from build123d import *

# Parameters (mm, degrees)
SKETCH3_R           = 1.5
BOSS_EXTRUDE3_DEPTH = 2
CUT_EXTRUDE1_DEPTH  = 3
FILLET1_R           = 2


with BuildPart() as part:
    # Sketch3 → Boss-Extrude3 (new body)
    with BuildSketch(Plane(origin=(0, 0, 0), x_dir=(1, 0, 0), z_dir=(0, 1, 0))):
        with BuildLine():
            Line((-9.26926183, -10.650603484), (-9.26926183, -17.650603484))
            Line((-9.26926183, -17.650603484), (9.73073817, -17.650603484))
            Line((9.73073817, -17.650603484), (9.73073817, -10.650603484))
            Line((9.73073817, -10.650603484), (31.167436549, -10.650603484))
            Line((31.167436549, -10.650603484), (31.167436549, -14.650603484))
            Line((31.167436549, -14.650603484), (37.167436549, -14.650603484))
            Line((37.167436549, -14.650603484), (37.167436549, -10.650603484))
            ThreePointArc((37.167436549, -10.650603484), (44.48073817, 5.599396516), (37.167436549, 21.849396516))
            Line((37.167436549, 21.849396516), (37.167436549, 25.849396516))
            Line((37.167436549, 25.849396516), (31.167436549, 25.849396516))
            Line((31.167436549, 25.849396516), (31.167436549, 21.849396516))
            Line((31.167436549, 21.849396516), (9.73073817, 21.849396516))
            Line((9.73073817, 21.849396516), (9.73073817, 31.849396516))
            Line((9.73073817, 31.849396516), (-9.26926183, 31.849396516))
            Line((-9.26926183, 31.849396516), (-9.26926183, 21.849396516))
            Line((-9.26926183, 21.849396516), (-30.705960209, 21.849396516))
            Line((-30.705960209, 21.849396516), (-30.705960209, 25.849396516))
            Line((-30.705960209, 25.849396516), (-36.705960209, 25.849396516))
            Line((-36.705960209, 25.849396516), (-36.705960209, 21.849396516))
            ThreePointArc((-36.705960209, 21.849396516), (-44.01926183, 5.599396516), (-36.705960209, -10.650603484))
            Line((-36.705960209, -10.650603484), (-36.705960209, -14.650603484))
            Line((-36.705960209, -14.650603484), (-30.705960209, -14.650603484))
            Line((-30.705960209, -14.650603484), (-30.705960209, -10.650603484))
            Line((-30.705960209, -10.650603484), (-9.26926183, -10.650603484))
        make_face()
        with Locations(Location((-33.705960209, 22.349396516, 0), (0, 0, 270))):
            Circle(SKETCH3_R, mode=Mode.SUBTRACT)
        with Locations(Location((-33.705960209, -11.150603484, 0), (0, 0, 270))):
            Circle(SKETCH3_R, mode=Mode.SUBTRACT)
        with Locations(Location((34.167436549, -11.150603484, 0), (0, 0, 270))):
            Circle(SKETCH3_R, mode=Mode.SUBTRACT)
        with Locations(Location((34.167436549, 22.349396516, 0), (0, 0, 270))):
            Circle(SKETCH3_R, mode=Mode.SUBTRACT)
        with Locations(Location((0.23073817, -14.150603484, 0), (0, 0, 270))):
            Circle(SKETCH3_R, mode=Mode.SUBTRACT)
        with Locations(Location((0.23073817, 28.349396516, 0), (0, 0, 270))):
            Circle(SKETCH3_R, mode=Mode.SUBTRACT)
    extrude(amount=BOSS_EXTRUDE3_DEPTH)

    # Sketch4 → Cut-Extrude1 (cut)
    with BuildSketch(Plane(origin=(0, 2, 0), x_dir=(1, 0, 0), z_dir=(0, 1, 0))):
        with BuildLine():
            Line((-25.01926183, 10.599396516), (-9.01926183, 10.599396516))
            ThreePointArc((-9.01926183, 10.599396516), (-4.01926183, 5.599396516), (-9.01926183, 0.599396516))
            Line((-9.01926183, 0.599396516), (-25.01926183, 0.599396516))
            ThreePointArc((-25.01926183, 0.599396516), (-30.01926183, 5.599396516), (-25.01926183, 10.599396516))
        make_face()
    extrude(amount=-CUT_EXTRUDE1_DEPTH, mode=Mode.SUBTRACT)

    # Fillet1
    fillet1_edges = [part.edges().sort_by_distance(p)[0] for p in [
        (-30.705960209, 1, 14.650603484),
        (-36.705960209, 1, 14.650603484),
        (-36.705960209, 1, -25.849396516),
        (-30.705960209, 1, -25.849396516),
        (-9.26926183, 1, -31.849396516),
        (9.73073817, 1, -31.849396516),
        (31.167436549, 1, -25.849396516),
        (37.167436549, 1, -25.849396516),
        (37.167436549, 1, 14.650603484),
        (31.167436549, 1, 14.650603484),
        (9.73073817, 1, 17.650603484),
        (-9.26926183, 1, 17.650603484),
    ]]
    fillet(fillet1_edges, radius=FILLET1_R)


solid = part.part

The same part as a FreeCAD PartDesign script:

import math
import FreeCAD as App
import Part
import Sketcher
Q = App.Units.Quantity


def edges_at(feature, points):
    """Names of the edges that pass closest to the given points."""
    edges = feature.Shape.Edges
    near = lambda p: min(range(len(edges)), key=lambda i: edges[i].distToShape(Part.Vertex(*p))[0])
    return sorted({f"Edge{near(p) + 1}" for p in points})

doc = App.newDocument("Part")
body = doc.addObject("PartDesign::Body", "Body")

sketch1 = body.newObject("Sketcher::SketchObject", "Sketch")
sketch1.AttachmentSupport = (doc.getObject("XZ_Plane"), [""])
sketch1.MapMode = "FlatFace"
sketch1.addGeometry(Part.LineSegment(App.Vector(-9.269262, 10.650603, 0), App.Vector(-9.269262, 17.650603, 0)), False)
sketch1.addGeometry(Part.LineSegment(App.Vector(-9.269262, 17.650603, 0), App.Vector(9.730738, 17.650603, 0)), False)
sketch1.addGeometry(Part.LineSegment(App.Vector(9.730738, 17.650603, 0), App.Vector(9.730738, 10.650603, 0)), False)
sketch1.addGeometry(Part.LineSegment(App.Vector(9.730738, 10.650603, 0), App.Vector(31.167437, 10.650603, 0)), False)
sketch1.addGeometry(Part.LineSegment(App.Vector(31.167437, 10.650603, 0), App.Vector(31.167437, 14.650603, 0)), False)
sketch1.addGeometry(Part.LineSegment(App.Vector(31.167437, 14.650603, 0), App.Vector(37.167437, 14.650603, 0)), False)
sketch1.addGeometry(Part.LineSegment(App.Vector(37.167437, 14.650603, 0), App.Vector(37.167437, 10.650603, 0)), False)
sketch1.addGeometry(Part.ArcOfCircle(Part.Circle(App.Vector(22.770511, -5.599397, 0), App.Vector(0, 0, 1), 21.710227), math.radians(-48.460191), math.radians(48.460191)), False)
sketch1.addGeometry(Part.LineSegment(App.Vector(37.167437, -21.849397, 0), App.Vector(37.167437, -25.849397, 0)), False)
sketch1.addGeometry(Part.LineSegment(App.Vector(37.167437, -25.849397, 0), App.Vector(31.167437, -25.849397, 0)), False)
sketch1.addGeometry(Part.LineSegment(App.Vector(31.167437, -25.849397, 0), App.Vector(31.167437, -21.849397, 0)), False)
sketch1.addGeometry(Part.LineSegment(App.Vector(31.167437, -21.849397, 0), App.Vector(9.730738, -21.849397, 0)), False)
sketch1.addGeometry(Part.LineSegment(App.Vector(9.730738, -21.849397, 0), App.Vector(9.730738, -31.849397, 0)), False)
sketch1.addGeometry(Part.LineSegment(App.Vector(9.730738, -31.849397, 0), App.Vector(-9.269262, -31.849397, 0)), False)
sketch1.addGeometry(Part.LineSegment(App.Vector(-9.269262, -31.849397, 0), App.Vector(-9.269262, -21.849397, 0)), False)
sketch1.addGeometry(Part.LineSegment(App.Vector(-9.269262, -21.849397, 0), App.Vector(-30.70596, -21.849397, 0)), False)
sketch1.addGeometry(Part.LineSegment(App.Vector(-30.70596, -21.849397, 0), App.Vector(-30.70596, -25.849397, 0)), False)
sketch1.addGeometry(Part.LineSegment(App.Vector(-30.70596, -25.849397, 0), App.Vector(-36.70596, -25.849397, 0)), False)
sketch1.addGeometry(Part.LineSegment(App.Vector(-36.70596, -25.849397, 0), App.Vector(-36.70596, -21.849397, 0)), False)
sketch1.addGeometry(Part.ArcOfCircle(Part.Circle(App.Vector(-22.309035, -5.599397, 0), App.Vector(0, 0, 1), 21.710227), math.radians(131.539809), math.radians(228.460191)), False)
sketch1.addGeometry(Part.LineSegment(App.Vector(-36.70596, 10.650603, 0), App.Vector(-36.70596, 14.650603, 0)), False)
sketch1.addGeometry(Part.LineSegment(App.Vector(-36.70596, 14.650603, 0), App.Vector(-30.70596, 14.650603, 0)), False)
sketch1.addGeometry(Part.LineSegment(App.Vector(-30.70596, 14.650603, 0), App.Vector(-30.70596, 10.650603, 0)), False)
sketch1.addGeometry(Part.LineSegment(App.Vector(-30.70596, 10.650603, 0), App.Vector(-9.269262, 10.650603, 0)), False)
sketch1.addGeometry(Part.Circle(App.Vector(-33.70596, 11.150603, 0), App.Vector(0, 0, 1), 1.5), False)
sketch1.addGeometry(Part.Circle(App.Vector(0.230738, 14.150603, 0), App.Vector(0, 0, 1), 1.5), False)
sketch1.addGeometry(Part.Circle(App.Vector(34.167437, 11.150603, 0), App.Vector(0, 0, 1), 1.5), False)
sketch1.addGeometry(Part.Circle(App.Vector(-33.70596, -22.349397, 0), App.Vector(0, 0, 1), 1.5), False)
sketch1.addGeometry(Part.Circle(App.Vector(0.230738, -28.349397, 0), App.Vector(0, 0, 1), 1.5), False)
sketch1.addGeometry(Part.Circle(App.Vector(34.167437, -22.349397, 0), App.Vector(0, 0, 1), 1.5), False)
sketch1.addConstraint(Sketcher.Constraint("Coincident", 0, 2, 1, 1))
sketch1.addConstraint(Sketcher.Constraint("Coincident", 1, 2, 2, 1))
sketch1.addConstraint(Sketcher.Constraint("Coincident", 2, 2, 3, 1))
sketch1.addConstraint(Sketcher.Constraint("Coincident", 3, 2, 4, 1))
sketch1.addConstraint(Sketcher.Constraint("Coincident", 4, 2, 5, 1))
sketch1.addConstraint(Sketcher.Constraint("Coincident", 5, 2, 6, 1))
sketch1.addConstraint(Sketcher.Constraint("Coincident", 6, 2, 7, 2))
sketch1.addConstraint(Sketcher.Constraint("Coincident", 7, 1, 8, 1))
sketch1.addConstraint(Sketcher.Constraint("Coincident", 8, 2, 9, 1))
sketch1.addConstraint(Sketcher.Constraint("Coincident", 9, 2, 10, 1))
sketch1.addConstraint(Sketcher.Constraint("Coincident", 10, 2, 11, 1))
sketch1.addConstraint(Sketcher.Constraint("Coincident", 11, 2, 12, 1))
sketch1.addConstraint(Sketcher.Constraint("Coincident", 12, 2, 13, 1))
sketch1.addConstraint(Sketcher.Constraint("Coincident", 13, 2, 14, 1))
sketch1.addConstraint(Sketcher.Constraint("Coincident", 14, 2, 15, 1))
sketch1.addConstraint(Sketcher.Constraint("Coincident", 15, 2, 16, 1))
sketch1.addConstraint(Sketcher.Constraint("Coincident", 16, 2, 17, 1))
sketch1.addConstraint(Sketcher.Constraint("Coincident", 17, 2, 18, 1))
sketch1.addConstraint(Sketcher.Constraint("Coincident", 18, 2, 19, 2))
sketch1.addConstraint(Sketcher.Constraint("Coincident", 19, 1, 20, 1))
sketch1.addConstraint(Sketcher.Constraint("Coincident", 20, 2, 21, 1))
sketch1.addConstraint(Sketcher.Constraint("Coincident", 21, 2, 22, 1))
sketch1.addConstraint(Sketcher.Constraint("Coincident", 22, 2, 23, 1))
sketch1.addConstraint(Sketcher.Constraint("Coincident", 23, 2, 0, 1))
sketch1.addConstraint(Sketcher.Constraint("Vertical", 0))
sketch1.addConstraint(Sketcher.Constraint("Horizontal", 1))
sketch1.addConstraint(Sketcher.Constraint("Vertical", 2))
sketch1.addConstraint(Sketcher.Constraint("Horizontal", 3))
sketch1.addConstraint(Sketcher.Constraint("Vertical", 4))
sketch1.addConstraint(Sketcher.Constraint("Horizontal", 5))
sketch1.addConstraint(Sketcher.Constraint("Vertical", 6))
sketch1.addConstraint(Sketcher.Constraint("Vertical", 8))
sketch1.addConstraint(Sketcher.Constraint("Horizontal", 9))
sketch1.addConstraint(Sketcher.Constraint("Vertical", 10))
sketch1.addConstraint(Sketcher.Constraint("Horizontal", 11))
sketch1.addConstraint(Sketcher.Constraint("Vertical", 12))
sketch1.addConstraint(Sketcher.Constraint("Horizontal", 13))
sketch1.addConstraint(Sketcher.Constraint("Vertical", 14))
sketch1.addConstraint(Sketcher.Constraint("Horizontal", 15))
sketch1.addConstraint(Sketcher.Constraint("Vertical", 16))
sketch1.addConstraint(Sketcher.Constraint("Horizontal", 17))
sketch1.addConstraint(Sketcher.Constraint("Vertical", 18))
sketch1.addConstraint(Sketcher.Constraint("Vertical", 20))
sketch1.addConstraint(Sketcher.Constraint("Horizontal", 21))
sketch1.addConstraint(Sketcher.Constraint("Vertical", 22))
sketch1.addConstraint(Sketcher.Constraint("Horizontal", 23))
sketch1.addConstraint(Sketcher.Constraint("Equal", 7, 19))
sketch1.addConstraint(Sketcher.Constraint("Equal", 24, 25))
sketch1.addConstraint(Sketcher.Constraint("Equal", 25, 26))
sketch1.addConstraint(Sketcher.Constraint("Equal", 26, 27))
sketch1.addConstraint(Sketcher.Constraint("Equal", 27, 28))
sketch1.addConstraint(Sketcher.Constraint("Equal", 28, 29))
sketch1.addConstraint(Sketcher.Constraint("Horizontal", 7, 3, 19, 3))
sketch1.addConstraint(Sketcher.Constraint("Horizontal", 24, 3, 26, 3))
sketch1.addConstraint(Sketcher.Constraint("Horizontal", 27, 3, 29, 3))
sketch1.addConstraint(Sketcher.Constraint("Horizontal", 3, 2, 6, 2))
sketch1.addConstraint(Sketcher.Constraint("Horizontal", 7, 1, 10, 2))
sketch1.addConstraint(Sketcher.Constraint("Horizontal", 11, 2, 14, 2))
sketch1.addConstraint(Sketcher.Constraint("Horizontal", 9, 2, 16, 2))
sketch1.addConstraint(Sketcher.Constraint("Horizontal", 15, 2, 18, 2))
sketch1.addConstraint(Sketcher.Constraint("Horizontal", 6, 2, 19, 1))
sketch1.addConstraint(Sketcher.Constraint("Horizontal", 5, 2, 20, 2))
sketch1.addConstraint(Sketcher.Constraint("Horizontal", 19, 1, 22, 2))
sketch1.addConstraint(Sketcher.Constraint("Vertical", 24, 3, 27, 3))
sketch1.addConstraint(Sketcher.Constraint("Vertical", 25, 3, 28, 3))
sketch1.addConstraint(Sketcher.Constraint("Vertical", 26, 3, 29, 3))
sketch1.addConstraint(Sketcher.Constraint("Vertical", 6, 2, 7, 1))
sketch1.addConstraint(Sketcher.Constraint("Vertical", 4, 2, 9, 2))
sketch1.addConstraint(Sketcher.Constraint("Vertical", 2, 2, 11, 2))
sketch1.addConstraint(Sketcher.Constraint("Vertical", 0, 2, 13, 2))
sketch1.addConstraint(Sketcher.Constraint("Vertical", 16, 2, 21, 2))
sketch1.addConstraint(Sketcher.Constraint("Equal", 11, 15))
sketch1.addConstraint(Sketcher.Constraint("Equal", 9, 17))
sketch1.addConstraint(Sketcher.Constraint("Equal", 6, 8))
sketch1.addConstraint(Sketcher.Constraint("Diameter", 24, Q("3 mm")))
sketch1.addConstraint(Sketcher.Constraint("DistanceX", 1, 1, 1, 2, Q("19 mm")))
sketch1.addConstraint(Sketcher.Constraint("DistanceX", 5, 1, 5, 2, Q("6 mm")))
sketch1.addConstraint(Sketcher.Constraint("DistanceY", 0, 1, 0, 2, Q("7 mm")))
sketch1.addConstraint(Sketcher.Constraint("DistanceY", 4, 1, 4, 2, Q("4 mm")))
sketch1.addConstraint(Sketcher.Constraint("DistanceY", 12, 2, 12, 1, Q("10 mm")))
sketch1.addConstraint(Sketcher.Constraint("DistanceY", 24, 3, 25, 3, Q("3 mm")))
sketch1.addConstraint(Sketcher.Constraint("DistanceY", 28, 3, 27, 3, Q("6 mm")))
sketch1.addConstraint(Sketcher.Constraint("DistanceX", 3, 2, 26, 3, Q("3 mm")))
sketch1.addConstraint(Sketcher.Constraint("DistanceY", 7, 1, 26, 3, Q("33 mm")))
sketch1.addConstraint(Sketcher.Constraint("DistanceX", 27, 3, 15, 2, Q("3 mm")))
sketch1.addConstraint(Sketcher.Constraint("DistanceY", 27, 3, 24, 3, Q("33.5 mm")))
sketch1.addConstraint(Sketcher.Constraint("DistanceX", 0, 2, 25, 3, Q("9.5 mm")))
sketch1.addConstraint(Sketcher.Constraint("DistanceY", 25, 3, 0, 2, Q("3.5 mm")))
sketch1.addConstraint(Sketcher.Constraint("DistanceX", 3, 1, 3, 2, Q("21.436698 mm")))
sketch1.addConstraint(Sketcher.Constraint("Radius", 7, Q("21.710227 mm")))
sketch1.addConstraint(Sketcher.Constraint("DistanceX", -1, 1, 7, 3, Q("22.770511 mm")))
sketch1.addConstraint(Sketcher.Constraint("DistanceY", 7, 3, -1, 1, Q("5.599397 mm")))
pad1 = body.newObject("PartDesign::Pad", "Pad")
pad1.Profile = sketch1
pad1.Length = 2
pad1.Reversed = True

sketch2 = body.newObject("Sketcher::SketchObject", "Sketch001")
sketch2.AttachmentSupport = (doc.getObject("XZ_Plane"), [""])
sketch2.MapMode = "FlatFace"
sketch2.AttachmentOffset = App.Placement(App.Vector(0, 0, -2), App.Rotation())
sketch2.addGeometry(Part.LineSegment(App.Vector(-9.019262, -10.599397, 0), App.Vector(-25.019262, -10.599397, 0)), False)
sketch2.addGeometry(Part.ArcOfCircle(Part.Circle(App.Vector(-25.019262, -5.599397, 0), App.Vector(0, 0, 1), 5), math.radians(90), math.radians(270)), False)
sketch2.addGeometry(Part.LineSegment(App.Vector(-25.019262, -0.599397, 0), App.Vector(-9.019262, -0.599397, 0)), False)
sketch2.addGeometry(Part.ArcOfCircle(Part.Circle(App.Vector(-9.019262, -5.599397, 0), App.Vector(0, 0, 1), 5), math.radians(-90), math.radians(90)), False)
sketch2.addConstraint(Sketcher.Constraint("Tangent", 0, 2, 1, 2))
sketch2.addConstraint(Sketcher.Constraint("Tangent", 1, 1, 2, 1))
sketch2.addConstraint(Sketcher.Constraint("Tangent", 2, 2, 3, 2))
sketch2.addConstraint(Sketcher.Constraint("Tangent", 3, 1, 0, 1))
sketch2.addConstraint(Sketcher.Constraint("Horizontal", 0))
sketch2.addConstraint(Sketcher.Constraint("Horizontal", 2))
sketch2.addConstraint(Sketcher.Constraint("Radius", 1, Q("5 mm")))
sketch2.addConstraint(Sketcher.Constraint("DistanceX", 0, 2, 0, 1, Q("16 mm")))
sketch2.addConstraint(Sketcher.Constraint("DistanceX", 1, 3, -1, 1, Q("25.019262 mm")))
sketch2.addConstraint(Sketcher.Constraint("DistanceY", 1, 3, -1, 1, Q("5.599397 mm")))
pocket1 = body.newObject("PartDesign::Pocket", "Pocket")
pocket1.Profile = sketch2
pocket1.Length = 3
pocket1.Reversed = True
doc.recompute()

fillet = body.newObject("PartDesign::Fillet", "Fillet")
fillet.Base = (pocket1, edges_at(pocket1, [
    (-30.706, 1, 14.651),
    (-36.706, 1, 14.651),
    (-36.706, 1, -25.849),
    (-30.706, 1, -25.849),
    (-9.269, 1, -31.849),
    (9.731, 1, -31.849),
    (31.167, 1, -25.849),
    (37.167, 1, -25.849),
    (37.167, 1, 14.651),
    (31.167, 1, 14.651),
    (9.731, 1, 17.651),
    (-9.269, 1, 17.651),
]))
fillet.Radius = 2

doc.recompute()
